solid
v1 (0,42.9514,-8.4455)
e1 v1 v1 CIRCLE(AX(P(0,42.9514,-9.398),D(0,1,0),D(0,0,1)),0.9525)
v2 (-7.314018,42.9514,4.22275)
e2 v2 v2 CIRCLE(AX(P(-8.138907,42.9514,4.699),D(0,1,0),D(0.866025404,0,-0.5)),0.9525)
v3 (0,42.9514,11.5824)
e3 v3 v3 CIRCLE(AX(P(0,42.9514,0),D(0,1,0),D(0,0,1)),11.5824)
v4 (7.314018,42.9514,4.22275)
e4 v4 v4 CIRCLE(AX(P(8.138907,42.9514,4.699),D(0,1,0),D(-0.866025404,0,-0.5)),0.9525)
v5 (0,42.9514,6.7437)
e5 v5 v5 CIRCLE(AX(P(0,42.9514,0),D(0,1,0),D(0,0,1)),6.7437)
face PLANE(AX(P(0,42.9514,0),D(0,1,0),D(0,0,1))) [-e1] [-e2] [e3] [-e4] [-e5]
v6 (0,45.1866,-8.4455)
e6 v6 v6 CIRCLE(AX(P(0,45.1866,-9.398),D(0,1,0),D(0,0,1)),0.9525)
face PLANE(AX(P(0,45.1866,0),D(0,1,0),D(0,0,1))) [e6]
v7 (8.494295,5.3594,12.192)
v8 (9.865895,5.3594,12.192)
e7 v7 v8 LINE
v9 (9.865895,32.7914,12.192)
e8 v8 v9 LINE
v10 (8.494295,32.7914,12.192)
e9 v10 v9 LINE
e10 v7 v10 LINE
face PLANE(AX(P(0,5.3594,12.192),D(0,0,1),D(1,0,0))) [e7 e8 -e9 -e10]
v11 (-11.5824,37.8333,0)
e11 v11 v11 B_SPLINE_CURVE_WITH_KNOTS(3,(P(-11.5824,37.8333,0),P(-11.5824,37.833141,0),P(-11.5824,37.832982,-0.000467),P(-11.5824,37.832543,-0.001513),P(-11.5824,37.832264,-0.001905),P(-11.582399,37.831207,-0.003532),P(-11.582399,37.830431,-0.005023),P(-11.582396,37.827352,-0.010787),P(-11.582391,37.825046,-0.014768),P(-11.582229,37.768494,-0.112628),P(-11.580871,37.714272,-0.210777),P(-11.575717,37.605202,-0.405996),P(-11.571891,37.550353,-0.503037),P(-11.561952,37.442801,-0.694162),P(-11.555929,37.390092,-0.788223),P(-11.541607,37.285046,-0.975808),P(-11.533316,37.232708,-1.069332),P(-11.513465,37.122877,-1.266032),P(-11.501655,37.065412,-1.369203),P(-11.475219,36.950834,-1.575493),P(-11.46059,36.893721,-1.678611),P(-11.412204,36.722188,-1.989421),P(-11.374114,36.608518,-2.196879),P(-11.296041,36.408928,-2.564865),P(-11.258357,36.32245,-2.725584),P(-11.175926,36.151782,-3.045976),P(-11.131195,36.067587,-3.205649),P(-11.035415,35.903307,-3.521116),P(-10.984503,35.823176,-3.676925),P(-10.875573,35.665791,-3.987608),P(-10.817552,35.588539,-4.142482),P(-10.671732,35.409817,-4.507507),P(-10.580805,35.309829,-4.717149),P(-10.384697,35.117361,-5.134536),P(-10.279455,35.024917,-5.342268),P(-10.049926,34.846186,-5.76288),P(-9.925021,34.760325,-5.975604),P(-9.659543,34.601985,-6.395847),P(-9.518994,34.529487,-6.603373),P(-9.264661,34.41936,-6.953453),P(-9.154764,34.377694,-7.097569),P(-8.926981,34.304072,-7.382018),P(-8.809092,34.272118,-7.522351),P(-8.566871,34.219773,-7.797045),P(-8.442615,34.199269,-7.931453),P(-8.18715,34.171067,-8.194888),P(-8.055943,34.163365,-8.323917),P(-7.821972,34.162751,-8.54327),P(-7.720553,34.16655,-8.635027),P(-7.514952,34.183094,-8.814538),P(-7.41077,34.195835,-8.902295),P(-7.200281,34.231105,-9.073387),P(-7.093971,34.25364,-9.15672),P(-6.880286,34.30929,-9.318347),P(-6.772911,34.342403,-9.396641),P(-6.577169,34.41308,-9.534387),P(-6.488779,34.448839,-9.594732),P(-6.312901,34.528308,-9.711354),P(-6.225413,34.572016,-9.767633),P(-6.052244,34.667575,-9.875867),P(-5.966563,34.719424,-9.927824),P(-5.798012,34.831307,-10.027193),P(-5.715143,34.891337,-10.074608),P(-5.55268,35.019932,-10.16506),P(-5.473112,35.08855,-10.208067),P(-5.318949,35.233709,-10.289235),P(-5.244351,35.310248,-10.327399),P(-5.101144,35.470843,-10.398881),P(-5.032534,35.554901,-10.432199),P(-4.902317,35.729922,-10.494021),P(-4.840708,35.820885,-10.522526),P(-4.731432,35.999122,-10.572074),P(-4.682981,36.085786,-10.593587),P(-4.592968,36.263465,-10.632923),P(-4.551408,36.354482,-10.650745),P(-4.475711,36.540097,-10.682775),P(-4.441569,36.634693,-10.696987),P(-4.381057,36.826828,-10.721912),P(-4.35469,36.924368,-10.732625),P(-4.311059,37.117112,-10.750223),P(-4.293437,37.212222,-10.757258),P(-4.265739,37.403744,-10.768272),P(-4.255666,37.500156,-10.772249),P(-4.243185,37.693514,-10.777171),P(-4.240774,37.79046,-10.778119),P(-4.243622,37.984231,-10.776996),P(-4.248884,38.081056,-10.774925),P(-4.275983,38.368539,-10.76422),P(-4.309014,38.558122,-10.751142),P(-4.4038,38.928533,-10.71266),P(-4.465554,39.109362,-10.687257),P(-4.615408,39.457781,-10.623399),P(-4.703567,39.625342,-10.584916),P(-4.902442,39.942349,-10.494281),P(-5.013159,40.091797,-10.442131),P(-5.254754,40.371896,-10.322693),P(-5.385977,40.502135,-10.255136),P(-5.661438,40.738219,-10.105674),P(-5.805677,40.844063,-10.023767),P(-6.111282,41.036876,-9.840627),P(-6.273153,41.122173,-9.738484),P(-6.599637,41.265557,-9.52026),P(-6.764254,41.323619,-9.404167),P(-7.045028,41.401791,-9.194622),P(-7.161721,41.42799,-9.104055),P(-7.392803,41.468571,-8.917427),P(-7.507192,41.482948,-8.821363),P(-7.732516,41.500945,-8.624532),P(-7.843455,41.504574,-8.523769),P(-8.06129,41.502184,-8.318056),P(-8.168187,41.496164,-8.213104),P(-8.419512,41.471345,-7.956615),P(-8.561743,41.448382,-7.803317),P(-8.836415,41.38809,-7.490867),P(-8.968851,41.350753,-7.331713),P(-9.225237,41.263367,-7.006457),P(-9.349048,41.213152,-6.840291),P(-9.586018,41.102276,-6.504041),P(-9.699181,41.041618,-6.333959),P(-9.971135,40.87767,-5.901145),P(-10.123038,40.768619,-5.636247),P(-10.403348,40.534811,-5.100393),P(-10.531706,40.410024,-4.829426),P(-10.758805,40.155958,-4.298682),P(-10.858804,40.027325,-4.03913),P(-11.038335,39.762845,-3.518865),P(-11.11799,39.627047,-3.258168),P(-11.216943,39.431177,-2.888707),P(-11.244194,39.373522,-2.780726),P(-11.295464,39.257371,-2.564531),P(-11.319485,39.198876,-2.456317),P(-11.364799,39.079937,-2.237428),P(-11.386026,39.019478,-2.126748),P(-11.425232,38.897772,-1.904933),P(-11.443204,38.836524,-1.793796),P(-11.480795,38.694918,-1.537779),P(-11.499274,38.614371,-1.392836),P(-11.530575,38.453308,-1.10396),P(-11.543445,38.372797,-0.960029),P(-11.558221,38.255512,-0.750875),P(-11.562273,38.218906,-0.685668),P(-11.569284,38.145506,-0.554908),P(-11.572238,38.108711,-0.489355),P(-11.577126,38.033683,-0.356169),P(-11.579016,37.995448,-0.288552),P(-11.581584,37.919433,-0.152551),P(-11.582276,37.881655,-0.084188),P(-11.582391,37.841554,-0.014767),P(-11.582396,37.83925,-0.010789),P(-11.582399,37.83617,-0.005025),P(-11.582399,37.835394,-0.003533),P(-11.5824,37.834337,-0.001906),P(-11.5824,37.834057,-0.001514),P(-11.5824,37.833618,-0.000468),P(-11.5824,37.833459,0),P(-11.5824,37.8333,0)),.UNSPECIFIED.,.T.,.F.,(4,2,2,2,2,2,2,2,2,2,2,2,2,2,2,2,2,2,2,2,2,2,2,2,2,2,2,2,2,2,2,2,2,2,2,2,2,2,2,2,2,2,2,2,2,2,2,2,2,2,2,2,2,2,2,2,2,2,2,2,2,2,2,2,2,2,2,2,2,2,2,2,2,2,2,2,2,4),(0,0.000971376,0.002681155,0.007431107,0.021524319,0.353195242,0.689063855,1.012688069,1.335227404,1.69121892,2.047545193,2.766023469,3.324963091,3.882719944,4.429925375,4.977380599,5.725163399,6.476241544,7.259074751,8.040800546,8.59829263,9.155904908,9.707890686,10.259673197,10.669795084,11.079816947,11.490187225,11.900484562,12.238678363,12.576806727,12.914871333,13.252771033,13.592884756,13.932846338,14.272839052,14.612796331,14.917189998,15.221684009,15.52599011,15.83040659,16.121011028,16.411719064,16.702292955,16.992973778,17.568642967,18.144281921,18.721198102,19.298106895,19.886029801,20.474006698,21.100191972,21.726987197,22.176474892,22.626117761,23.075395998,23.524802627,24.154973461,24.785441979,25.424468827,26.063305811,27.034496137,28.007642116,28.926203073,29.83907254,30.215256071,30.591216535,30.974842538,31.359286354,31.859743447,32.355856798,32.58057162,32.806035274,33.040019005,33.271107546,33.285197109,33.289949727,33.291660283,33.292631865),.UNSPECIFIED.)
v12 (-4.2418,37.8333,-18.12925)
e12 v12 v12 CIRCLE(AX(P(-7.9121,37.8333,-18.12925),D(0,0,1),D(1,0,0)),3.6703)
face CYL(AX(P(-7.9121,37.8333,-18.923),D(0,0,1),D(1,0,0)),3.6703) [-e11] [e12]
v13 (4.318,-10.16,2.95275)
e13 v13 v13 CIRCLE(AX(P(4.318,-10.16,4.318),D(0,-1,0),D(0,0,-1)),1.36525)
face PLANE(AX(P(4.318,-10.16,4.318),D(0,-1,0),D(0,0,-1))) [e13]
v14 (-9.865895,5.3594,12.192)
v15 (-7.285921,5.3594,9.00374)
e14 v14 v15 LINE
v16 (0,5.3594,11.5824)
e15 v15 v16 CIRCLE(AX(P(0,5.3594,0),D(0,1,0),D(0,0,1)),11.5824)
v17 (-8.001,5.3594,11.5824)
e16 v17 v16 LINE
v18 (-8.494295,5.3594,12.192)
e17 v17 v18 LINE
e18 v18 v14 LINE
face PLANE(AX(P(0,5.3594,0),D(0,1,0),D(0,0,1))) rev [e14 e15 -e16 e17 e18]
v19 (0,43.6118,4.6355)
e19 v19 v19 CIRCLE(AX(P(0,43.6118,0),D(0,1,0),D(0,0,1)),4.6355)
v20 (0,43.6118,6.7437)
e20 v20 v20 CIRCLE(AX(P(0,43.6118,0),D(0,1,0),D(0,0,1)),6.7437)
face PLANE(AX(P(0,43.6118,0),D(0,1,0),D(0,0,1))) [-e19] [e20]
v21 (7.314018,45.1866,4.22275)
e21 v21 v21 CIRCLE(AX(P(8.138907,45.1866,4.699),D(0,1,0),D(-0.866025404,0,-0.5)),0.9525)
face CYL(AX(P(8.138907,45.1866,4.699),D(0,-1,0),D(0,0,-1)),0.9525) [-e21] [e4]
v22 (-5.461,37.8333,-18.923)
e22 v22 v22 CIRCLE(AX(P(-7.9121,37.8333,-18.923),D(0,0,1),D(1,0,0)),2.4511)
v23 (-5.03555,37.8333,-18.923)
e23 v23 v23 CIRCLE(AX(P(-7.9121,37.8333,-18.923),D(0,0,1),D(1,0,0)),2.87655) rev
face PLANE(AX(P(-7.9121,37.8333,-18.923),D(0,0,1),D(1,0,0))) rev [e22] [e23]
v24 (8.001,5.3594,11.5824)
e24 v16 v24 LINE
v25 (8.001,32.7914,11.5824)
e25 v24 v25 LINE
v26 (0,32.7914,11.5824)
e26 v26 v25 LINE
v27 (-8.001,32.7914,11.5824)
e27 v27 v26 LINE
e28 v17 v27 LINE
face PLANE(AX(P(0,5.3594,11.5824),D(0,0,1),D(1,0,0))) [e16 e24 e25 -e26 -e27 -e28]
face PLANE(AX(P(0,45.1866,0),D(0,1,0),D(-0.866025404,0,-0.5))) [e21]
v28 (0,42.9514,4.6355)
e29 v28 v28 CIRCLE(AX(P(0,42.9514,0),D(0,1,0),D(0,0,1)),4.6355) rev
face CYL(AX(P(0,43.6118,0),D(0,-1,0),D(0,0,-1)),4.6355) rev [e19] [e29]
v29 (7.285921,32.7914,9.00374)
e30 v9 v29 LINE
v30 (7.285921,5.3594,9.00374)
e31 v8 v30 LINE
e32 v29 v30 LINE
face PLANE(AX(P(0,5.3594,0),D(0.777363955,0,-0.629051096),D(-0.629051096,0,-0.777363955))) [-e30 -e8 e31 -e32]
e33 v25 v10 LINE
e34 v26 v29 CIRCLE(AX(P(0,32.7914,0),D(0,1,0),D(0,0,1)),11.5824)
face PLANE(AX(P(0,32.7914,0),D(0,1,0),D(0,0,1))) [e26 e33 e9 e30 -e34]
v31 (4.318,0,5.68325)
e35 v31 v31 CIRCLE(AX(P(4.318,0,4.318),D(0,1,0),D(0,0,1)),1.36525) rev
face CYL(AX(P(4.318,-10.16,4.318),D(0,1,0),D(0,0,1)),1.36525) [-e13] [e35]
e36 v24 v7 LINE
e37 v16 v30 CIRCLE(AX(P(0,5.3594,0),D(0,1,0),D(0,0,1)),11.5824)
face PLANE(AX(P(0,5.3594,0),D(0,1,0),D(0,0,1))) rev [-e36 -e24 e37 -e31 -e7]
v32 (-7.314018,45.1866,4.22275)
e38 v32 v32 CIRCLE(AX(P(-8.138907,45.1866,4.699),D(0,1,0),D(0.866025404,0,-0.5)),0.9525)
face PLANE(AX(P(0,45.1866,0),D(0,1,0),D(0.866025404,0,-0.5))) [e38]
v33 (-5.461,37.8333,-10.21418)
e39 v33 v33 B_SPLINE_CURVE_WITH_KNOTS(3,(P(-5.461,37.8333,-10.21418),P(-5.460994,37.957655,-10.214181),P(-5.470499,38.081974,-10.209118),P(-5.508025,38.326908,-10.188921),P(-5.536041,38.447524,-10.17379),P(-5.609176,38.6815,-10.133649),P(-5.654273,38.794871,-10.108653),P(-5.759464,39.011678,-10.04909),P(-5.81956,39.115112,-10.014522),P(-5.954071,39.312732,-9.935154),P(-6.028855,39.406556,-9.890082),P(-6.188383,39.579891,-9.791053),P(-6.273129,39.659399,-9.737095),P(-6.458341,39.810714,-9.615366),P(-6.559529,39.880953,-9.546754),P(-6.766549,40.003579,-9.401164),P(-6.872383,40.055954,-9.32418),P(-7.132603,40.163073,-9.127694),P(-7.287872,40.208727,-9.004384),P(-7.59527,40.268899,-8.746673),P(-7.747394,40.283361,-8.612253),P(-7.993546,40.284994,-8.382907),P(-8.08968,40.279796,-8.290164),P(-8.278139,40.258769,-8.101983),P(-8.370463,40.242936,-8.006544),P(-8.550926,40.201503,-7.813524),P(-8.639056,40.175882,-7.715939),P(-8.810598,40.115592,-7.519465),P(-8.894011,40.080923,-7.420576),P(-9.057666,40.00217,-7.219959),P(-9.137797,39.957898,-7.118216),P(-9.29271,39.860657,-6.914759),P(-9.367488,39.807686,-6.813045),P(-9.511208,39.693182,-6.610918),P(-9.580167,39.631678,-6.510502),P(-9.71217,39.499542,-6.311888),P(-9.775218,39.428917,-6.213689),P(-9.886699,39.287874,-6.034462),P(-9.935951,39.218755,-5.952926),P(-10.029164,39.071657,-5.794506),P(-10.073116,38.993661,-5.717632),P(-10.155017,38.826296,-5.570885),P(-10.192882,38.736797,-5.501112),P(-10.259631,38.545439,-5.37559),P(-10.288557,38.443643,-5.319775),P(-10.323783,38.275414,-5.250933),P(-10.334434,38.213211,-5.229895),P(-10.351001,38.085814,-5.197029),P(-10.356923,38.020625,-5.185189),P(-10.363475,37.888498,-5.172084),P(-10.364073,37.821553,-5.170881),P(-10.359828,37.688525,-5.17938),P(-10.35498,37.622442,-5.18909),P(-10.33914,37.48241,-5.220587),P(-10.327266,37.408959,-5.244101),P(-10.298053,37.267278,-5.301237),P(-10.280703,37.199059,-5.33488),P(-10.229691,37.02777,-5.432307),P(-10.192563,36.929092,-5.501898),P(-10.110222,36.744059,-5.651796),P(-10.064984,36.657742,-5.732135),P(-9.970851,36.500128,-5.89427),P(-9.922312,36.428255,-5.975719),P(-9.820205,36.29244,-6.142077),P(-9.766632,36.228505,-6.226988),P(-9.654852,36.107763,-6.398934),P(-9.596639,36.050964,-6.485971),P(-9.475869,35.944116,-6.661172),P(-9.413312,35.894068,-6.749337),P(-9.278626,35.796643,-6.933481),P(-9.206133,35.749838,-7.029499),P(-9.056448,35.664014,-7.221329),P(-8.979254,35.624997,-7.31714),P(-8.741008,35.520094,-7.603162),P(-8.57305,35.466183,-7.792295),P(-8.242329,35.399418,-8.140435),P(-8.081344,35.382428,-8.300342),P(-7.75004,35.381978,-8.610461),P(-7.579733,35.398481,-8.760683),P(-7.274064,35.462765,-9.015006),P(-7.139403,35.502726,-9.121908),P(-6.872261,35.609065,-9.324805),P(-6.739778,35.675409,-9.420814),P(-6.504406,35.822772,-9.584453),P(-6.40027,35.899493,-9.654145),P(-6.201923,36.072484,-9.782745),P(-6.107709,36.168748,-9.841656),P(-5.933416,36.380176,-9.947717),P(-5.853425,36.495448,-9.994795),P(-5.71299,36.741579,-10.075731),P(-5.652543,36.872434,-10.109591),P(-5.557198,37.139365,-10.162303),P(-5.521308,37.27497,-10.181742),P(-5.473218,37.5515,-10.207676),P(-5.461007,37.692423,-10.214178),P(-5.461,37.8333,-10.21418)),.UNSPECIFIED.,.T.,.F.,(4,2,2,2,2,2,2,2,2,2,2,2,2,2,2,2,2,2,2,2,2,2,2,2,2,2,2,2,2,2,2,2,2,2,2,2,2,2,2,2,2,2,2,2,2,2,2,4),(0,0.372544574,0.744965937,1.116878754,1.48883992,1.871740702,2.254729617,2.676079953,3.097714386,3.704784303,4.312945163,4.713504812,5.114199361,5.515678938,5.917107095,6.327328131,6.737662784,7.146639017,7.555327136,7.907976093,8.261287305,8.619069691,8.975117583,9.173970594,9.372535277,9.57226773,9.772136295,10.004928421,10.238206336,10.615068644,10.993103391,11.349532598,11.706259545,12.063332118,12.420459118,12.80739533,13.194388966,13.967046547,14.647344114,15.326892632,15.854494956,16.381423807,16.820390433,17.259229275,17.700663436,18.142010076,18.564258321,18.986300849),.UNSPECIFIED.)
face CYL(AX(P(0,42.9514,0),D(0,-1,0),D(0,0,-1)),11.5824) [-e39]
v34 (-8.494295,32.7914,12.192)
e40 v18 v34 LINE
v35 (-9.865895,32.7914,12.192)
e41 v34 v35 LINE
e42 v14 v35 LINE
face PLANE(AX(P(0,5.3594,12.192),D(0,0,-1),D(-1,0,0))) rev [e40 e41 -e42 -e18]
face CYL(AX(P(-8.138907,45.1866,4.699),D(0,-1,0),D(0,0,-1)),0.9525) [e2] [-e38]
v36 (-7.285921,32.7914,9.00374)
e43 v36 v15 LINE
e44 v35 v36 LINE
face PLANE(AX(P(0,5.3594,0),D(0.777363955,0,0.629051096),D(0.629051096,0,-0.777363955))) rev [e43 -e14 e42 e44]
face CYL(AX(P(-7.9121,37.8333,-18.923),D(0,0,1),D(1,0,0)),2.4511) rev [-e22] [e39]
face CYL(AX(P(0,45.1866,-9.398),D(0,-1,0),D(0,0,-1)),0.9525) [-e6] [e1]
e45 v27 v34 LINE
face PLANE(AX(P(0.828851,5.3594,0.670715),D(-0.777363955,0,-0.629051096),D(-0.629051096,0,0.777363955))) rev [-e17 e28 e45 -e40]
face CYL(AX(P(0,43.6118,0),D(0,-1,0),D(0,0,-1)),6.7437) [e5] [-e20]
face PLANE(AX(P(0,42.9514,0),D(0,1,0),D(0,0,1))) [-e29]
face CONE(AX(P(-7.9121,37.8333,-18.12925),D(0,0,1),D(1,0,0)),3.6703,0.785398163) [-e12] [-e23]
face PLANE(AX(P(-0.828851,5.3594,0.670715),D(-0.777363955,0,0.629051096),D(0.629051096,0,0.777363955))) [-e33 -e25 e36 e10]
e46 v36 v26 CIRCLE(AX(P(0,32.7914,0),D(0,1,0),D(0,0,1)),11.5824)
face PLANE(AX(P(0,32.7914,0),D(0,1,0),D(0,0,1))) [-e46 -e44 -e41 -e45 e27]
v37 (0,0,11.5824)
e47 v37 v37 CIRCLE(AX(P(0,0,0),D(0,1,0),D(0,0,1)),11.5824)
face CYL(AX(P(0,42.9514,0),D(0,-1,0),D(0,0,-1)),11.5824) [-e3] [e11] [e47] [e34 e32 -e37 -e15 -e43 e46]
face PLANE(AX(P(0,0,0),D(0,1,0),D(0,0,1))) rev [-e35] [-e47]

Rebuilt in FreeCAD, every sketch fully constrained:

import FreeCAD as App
import Part
import Sketcher
from FreeCAD import Vector
Q = App.Units.Quantity


def edges_at(feature, points):
    """Names of the edges that pass closest to the given points."""
    edges = feature.Shape.Edges
    near = lambda p: min(range(len(edges)), key=lambda i: edges[i].distToShape(Part.Vertex(*p))[0])
    return sorted({f"Edge{near(p) + 1}" for p in points})

doc = App.newDocument("Part")
params = doc.addObject("Spreadsheet::Sheet", "Params")
for row, (alias, value) in enumerate([
    ("sketch1_diameter", "0.912 in"),
    ("pad1_length", "1.691 in"),
    ("sketch2_diameter", "0.531 in"),
    ("sketch2_diameter2", "0.365 in"),
    ("pad2_length", "0.026 in"),
    ("sketch3_diameter", "0.075 in"),
    ("pad3_length", "0.088 in"),
    ("sketch4_diameter", "0.289 in"),
    ("sketch4_diameter2", "0.193 in"),
    ("pad4_length", "0.745 in"),
    ("chamfer_size", "0.03125 in"),
    ("pad5_length", "0.4 in"),
    ("sketch6_width", "0.63 in"),
    ("sketch6_width2", "0.054 in"),
    ("pad6_length", "1.08 in"),
], start=1):
    params.set(f"A{row}", alias)
    params.set(f"B{row}", "=" + value)
    params.setAlias(f"B{row}", alias)

body = doc.addObject("PartDesign::Body", "Body")

sketch1 = body.newObject("Sketcher::SketchObject", "Sketch")
sketch1.AttachmentSupport = (doc.getObject("XZ_Plane"), [""])
sketch1.MapMode = "FlatFace"
sketch1.addGeometry(Part.Circle(Vector(0, 0, 0), Vector(0, 0, 1), 12), False)
sketch1.addConstraint([
    Sketcher.Constraint("Coincident", 0, 3, -1, 1),
    Sketcher.Constraint("Diameter", 0, Q("0.912 in")),
])
sketch1.setExpression("Constraints[1]", "Params.sketch1_diameter")
pad1 = body.newObject("PartDesign::Pad", "Pad")
pad1.Profile = sketch1
pad1.setExpression("Length", "Params.pad1_length")
pad1.Reversed = True

sketch2 = body.newObject("Sketcher::SketchObject", "Sketch001")
sketch2.AttachmentSupport = (doc.getObject("XZ_Plane"), [""])
sketch2.MapMode = "FlatFace"
sketch2.AttachmentOffset = App.Placement(Vector(0, 0, -1.691 * 25.4), App.Rotation())
sketch2.addGeometry([
    Part.Circle(Vector(0, 0, 0), Vector(0, 0, 1), 6.7),
    Part.Circle(Vector(0, 0, 0), Vector(0, 0, 1), 4.6),
], False)
sketch2.addConstraint([
    Sketcher.Constraint("Coincident", 0, 3, -1, 1),
    Sketcher.Constraint("Coincident", 1, 3, -1, 1),
    Sketcher.Constraint("Diameter", 0, Q("0.531 in")),
    Sketcher.Constraint("Diameter", 1, Q("0.365 in")),
])
sketch2.setExpression("Constraints[2]", "Params.sketch2_diameter")
sketch2.setExpression("Constraints[3]", "Params.sketch2_diameter2")
pad2 = body.newObject("PartDesign::Pad", "Pad001")
pad2.Profile = sketch2
pad2.setExpression("Length", "Params.pad2_length")
pad2.Reversed = True

sketch3 = body.newObject("Sketcher::SketchObject", "Sketch002")
sketch3.AttachmentSupport = (doc.getObject("XZ_Plane"), [""])
sketch3.MapMode = "FlatFace"
sketch3.AttachmentOffset = App.Placement(Vector(0, 0, -1.691 * 25.4), App.Rotation())
sketch3.addGeometry(Part.Circle(Vector(0, -9.4, 0), Vector(0, 0, 1), 1), False)
sketch3.addConstraint([
    Sketcher.Constraint("PointOnObject", 0, 3, -2),
    Sketcher.Constraint("Diameter", 0, Q("0.075 in")),
    Sketcher.Constraint("DistanceY", 0, 3, -1, 1, Q("0.37 in")),
])
sketch3.setExpression("Constraints[1]", "Params.sketch3_diameter")
pad3 = body.newObject("PartDesign::Pad", "Pad002")
pad3.Profile = sketch3
pad3.setExpression("Length", "Params.pad3_length")
pad3.Reversed = True
doc.recompute()

polarpattern = body.newObject("PartDesign::PolarPattern", "PolarPattern")
polarpattern.Originals = [pad3]
polarpattern.Axis = (doc.getObject("Y_Axis"), [""])
polarpattern.Angle = 360
polarpattern.Occurrences = 3
body.Tip = polarpattern

sketch4 = body.newObject("Sketcher::SketchObject", "Sketch003")
sketch4.AttachmentSupport = (doc.getObject("XY_Plane"), [""])
sketch4.MapMode = "FlatFace"
sketch4.addGeometry([
    Part.Circle(Vector(-7.9, 37.8, 0), Vector(0, 0, 1), 3.7),
    Part.Circle(Vector(-7.9, 37.8, 0), Vector(0, 0, 1), 2.5),
], False)
sketch4.addConstraint([
    Sketcher.Constraint("Coincident", 1, 3, 0, 3),
    Sketcher.Constraint("Diameter", 0, Q("0.289 in")),
    Sketcher.Constraint("Diameter", 1, Q("0.193 in")),
    Sketcher.Constraint("DistanceX", 0, 3, -1, 1, Q("0.3115 in")),
    Sketcher.Constraint("DistanceY", -1, 1, 0, 3, Q("1.4895 in")),
])
sketch4.setExpression("Constraints[1]", "Params.sketch4_diameter")
sketch4.setExpression("Constraints[2]", "Params.sketch4_diameter2")
pad4 = body.newObject("PartDesign::Pad", "Pad003")
pad4.Profile = sketch4
pad4.setExpression("Length", "Params.pad4_length")
pad4.Reversed = True
doc.recompute()

chamfer = body.newObject("PartDesign::Chamfer", "Chamfer")
chamfer.Base = (pad4, edges_at(pad4, [(-11.582, 37.833, -18.923)]))
chamfer.setExpression("Size", "Params.chamfer_size")

sketch5 = body.newObject("Sketcher::SketchObject", "Sketch004")
sketch5.AttachmentSupport = (doc.getObject("XZ_Plane"), [""])
sketch5.MapMode = "FlatFace"
sketch5.addGeometry(Part.Circle(Vector(4.3, 4.3, 0), Vector(0, 0, 1), 1.4), False)
sketch5.addConstraint([
    Sketcher.Constraint("Diameter", 0, Q("0.1075 in")),
    Sketcher.Constraint("DistanceX", -1, 1, 0, 3, Q("0.17 in")),
    Sketcher.Constraint("DistanceY", -1, 1, 0, 3, Q("0.17 in")),
])
pad5 = body.newObject("PartDesign::Pad", "Pad004")
pad5.Profile = sketch5
pad5.setExpression("Length", "Params.pad5_length")

sketch6 = body.newObject("Sketcher::SketchObject", "Sketch005")
sketch6.AttachmentSupport = (doc.getObject("XZ_Plane"), [""])
sketch6.MapMode = "FlatFace"
sketch6.AttachmentOffset = App.Placement(Vector(0, 0, -1.291 * 25.4), App.Rotation())
sketch6.addGeometry([
    Part.LineSegment(Vector(8, 11.6, 0), Vector(8.5, 12.2, 0)),
    Part.LineSegment(Vector(8.5, 12.2, 0), Vector(9.9, 12.2, 0)),
    Part.LineSegment(Vector(9.9, 12.2, 0), Vector(0, 0, 0)),
    Part.LineSegment(Vector(0, 0, 0), Vector(-9.9, 12.2, 0)),
    Part.LineSegment(Vector(-9.9, 12.2, 0), Vector(-8.5, 12.2, 0)),
    Part.LineSegment(Vector(-8.5, 12.2, 0), Vector(-8, 11.6, 0)),
    Part.LineSegment(Vector(-8, 11.6, 0), Vector(8, 11.6, 0)),
], False)
sketch6.addConstraint([
    Sketcher.Constraint("Coincident", 0, 2, 1, 1),
    Sketcher.Constraint("Coincident", 1, 2, 2, 1),
    Sketcher.Constraint("Coincident", 2, 2, 3, 1),
    Sketcher.Constraint("Coincident", 3, 2, 4, 1),
    Sketcher.Constraint("Coincident", 4, 2, 5, 1),
    Sketcher.Constraint("Coincident", 5, 2, 6, 1),
    Sketcher.Constraint("Coincident", 6, 2, 0, 1),
    Sketcher.Constraint("Horizontal", 1),
    Sketcher.Constraint("Horizontal", 4),
    Sketcher.Constraint("Horizontal", 6),
    Sketcher.Constraint("Coincident", 2, 2, -1, 1),
    Sketcher.Constraint("Symmetric", 1, 2, 3, 2, -2),
    Sketcher.Constraint("Parallel", 0, 2),
    Sketcher.Constraint("Parallel", 3, 5),
    Sketcher.Constraint("Equal", 1, 4),
    Sketcher.Constraint("DistanceX", 6, 1, 6, 2, Q("0.63 in")),
    Sketcher.Constraint("DistanceX", 1, 1, 1, 2, Q("0.054 in")),
    Sketcher.Constraint("DistanceY", -1, 1, 0, 2, Q("0.48 in")),
    Sketcher.Constraint("DistanceY", -1, 1, 5, 2, Q("0.456 in")),
])
sketch6.setExpression("Constraints[15]", "Params.sketch6_width")
sketch6.setExpression("Constraints[16]", "Params.sketch6_width2")
pad6 = body.newObject("PartDesign::Pad", "Pad005")
pad6.Profile = sketch6
pad6.setExpression("Length", "Params.pad6_length")

doc.recompute()
